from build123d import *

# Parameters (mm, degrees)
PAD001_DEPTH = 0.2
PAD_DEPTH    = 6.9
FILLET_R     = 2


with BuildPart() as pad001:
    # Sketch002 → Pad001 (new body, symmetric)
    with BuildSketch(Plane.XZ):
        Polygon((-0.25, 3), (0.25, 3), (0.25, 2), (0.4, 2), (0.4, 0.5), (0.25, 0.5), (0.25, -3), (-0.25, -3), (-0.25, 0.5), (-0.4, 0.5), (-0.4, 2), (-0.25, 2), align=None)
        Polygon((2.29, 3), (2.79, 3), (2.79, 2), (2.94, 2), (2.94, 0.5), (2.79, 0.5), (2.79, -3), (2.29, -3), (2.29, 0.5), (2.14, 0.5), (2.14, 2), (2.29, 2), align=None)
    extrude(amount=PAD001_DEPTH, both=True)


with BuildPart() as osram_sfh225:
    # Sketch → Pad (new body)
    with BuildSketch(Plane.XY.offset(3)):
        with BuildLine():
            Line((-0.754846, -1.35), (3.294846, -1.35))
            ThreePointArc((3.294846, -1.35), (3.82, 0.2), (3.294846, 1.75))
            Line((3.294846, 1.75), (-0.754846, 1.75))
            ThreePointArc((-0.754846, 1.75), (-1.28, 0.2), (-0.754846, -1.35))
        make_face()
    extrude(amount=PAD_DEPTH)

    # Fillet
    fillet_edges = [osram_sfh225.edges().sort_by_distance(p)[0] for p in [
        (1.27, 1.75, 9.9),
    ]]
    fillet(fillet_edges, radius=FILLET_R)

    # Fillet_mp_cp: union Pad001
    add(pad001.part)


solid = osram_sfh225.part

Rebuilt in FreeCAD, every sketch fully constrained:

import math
import FreeCAD as App
import Part
import Sketcher


def edges_at(feature, points):
    """Names of the edges that pass closest to the given points."""
    edges = feature.Shape.Edges
    near = lambda p: min(range(len(edges)), key=lambda i: edges[i].distToShape(Part.Vertex(*p))[0])
    return sorted({f"Edge{near(p) + 1}" for p in points})

doc = App.newDocument("Part")
body = doc.addObject("PartDesign::Body", "Body")
body.AllowCompound = True

sketch1 = doc.addObject("Sketcher::SketchObject", "Sketch")
body.addObject(sketch1)
sketch1.AttachmentSupport = (doc.XZ_Plane, [""])
sketch1.MapMode = "FlatFace"
sketch1.addGeometry(Part.LineSegment(App.Vector(0.25, 3, 0), App.Vector(-0.25, 3, 0)), False)
sketch1.addGeometry(Part.LineSegment(App.Vector(-0.25, 3, 0), App.Vector(-0.25, 2, 0)), False)
sketch1.addGeometry(Part.LineSegment(App.Vector(-0.25, 2, 0), App.Vector(-0.4, 2, 0)), False)
sketch1.addGeometry(Part.LineSegment(App.Vector(-0.4, 2, 0), App.Vector(-0.4, 0.5, 0)), False)
sketch1.addGeometry(Part.LineSegment(App.Vector(-0.4, 0.5, 0), App.Vector(-0.25, 0.5, 0)), False)
sketch1.addGeometry(Part.LineSegment(App.Vector(-0.25, 0.5, 0), App.Vector(-0.25, -3, 0)), False)
sketch1.addGeometry(Part.LineSegment(App.Vector(-0.25, -3, 0), App.Vector(0.25, -3, 0)), False)
sketch1.addGeometry(Part.LineSegment(App.Vector(0.25, -3, 0), App.Vector(0.25, 0.5, 0)), False)
sketch1.addGeometry(Part.LineSegment(App.Vector(0.25, 0.5, 0), App.Vector(0.4, 0.5, 0)), False)
sketch1.addGeometry(Part.LineSegment(App.Vector(0.4, 0.5, 0), App.Vector(0.4, 2, 0)), False)
sketch1.addGeometry(Part.LineSegment(App.Vector(0.4, 2, 0), App.Vector(0.25, 2, 0)), False)
sketch1.addGeometry(Part.LineSegment(App.Vector(0.25, 2, 0), App.Vector(0.25, 3, 0)), False)
sketch1.addGeometry(Part.LineSegment(App.Vector(2.79, 3, 0), App.Vector(2.29, 3, 0)), False)
sketch1.addGeometry(Part.LineSegment(App.Vector(2.29, 3, 0), App.Vector(2.29, 2, 0)), False)
sketch1.addGeometry(Part.LineSegment(App.Vector(2.29, 2, 0), App.Vector(2.14, 2, 0)), False)
sketch1.addGeometry(Part.LineSegment(App.Vector(2.14, 2, 0), App.Vector(2.14, 0.5, 0)), False)
sketch1.addGeometry(Part.LineSegment(App.Vector(2.14, 0.5, 0), App.Vector(2.29, 0.5, 0)), False)
sketch1.addGeometry(Part.LineSegment(App.Vector(2.29, 0.5, 0), App.Vector(2.29, -3, 0)), False)
sketch1.addGeometry(Part.LineSegment(App.Vector(2.29, -3, 0), App.Vector(2.79, -3, 0)), False)
sketch1.addGeometry(Part.LineSegment(App.Vector(2.79, -3, 0), App.Vector(2.79, 0.5, 0)), False)
sketch1.addGeometry(Part.LineSegment(App.Vector(2.79, 0.5, 0), App.Vector(2.94, 0.5, 0)), False)
sketch1.addGeometry(Part.LineSegment(App.Vector(2.94, 0.5, 0), App.Vector(2.94, 2, 0)), False)
sketch1.addGeometry(Part.LineSegment(App.Vector(2.94, 2, 0), App.Vector(2.79, 2, 0)), False)
sketch1.addGeometry(Part.LineSegment(App.Vector(2.79, 2, 0), App.Vector(2.79, 3, 0)), False)
sketch1.addConstraint(Sketcher.Constraint("Coincident", 0, 2, 1, 1))
sketch1.addConstraint(Sketcher.Constraint("Coincident", 1, 2, 2, 1))
sketch1.addConstraint(Sketcher.Constraint("Coincident", 2, 2, 3, 1))
sketch1.addConstraint(Sketcher.Constraint("Coincident", 3, 2, 4, 1))
sketch1.addConstraint(Sketcher.Constraint("Coincident", 4, 2, 5, 1))
sketch1.addConstraint(Sketcher.Constraint("Coincident", 5, 2, 6, 1))
sketch1.addConstraint(Sketcher.Constraint("Coincident", 6, 2, 7, 1))
sketch1.addConstraint(Sketcher.Constraint("Coincident", 7, 2, 8, 1))
sketch1.addConstraint(Sketcher.Constraint("Coincident", 8, 2, 9, 1))
sketch1.addConstraint(Sketcher.Constraint("Coincident", 9, 2, 10, 1))
sketch1.addConstraint(Sketcher.Constraint("Coincident", 10, 2, 11, 1))
sketch1.addConstraint(Sketcher.Constraint("Coincident", 11, 2, 0, 1))
sketch1.addConstraint(Sketcher.Constraint("Coincident", 12, 2, 13, 1))
sketch1.addConstraint(Sketcher.Constraint("Coincident", 13, 2, 14, 1))
sketch1.addConstraint(Sketcher.Constraint("Coincident", 14, 2, 15, 1))
sketch1.addConstraint(Sketcher.Constraint("Coincident", 15, 2, 16, 1))
sketch1.addConstraint(Sketcher.Constraint("Coincident", 16, 2, 17, 1))
sketch1.addConstraint(Sketcher.Constraint("Coincident", 17, 2, 18, 1))
sketch1.addConstraint(Sketcher.Constraint("Coincident", 18, 2, 19, 1))
sketch1.addConstraint(Sketcher.Constraint("Coincident", 19, 2, 20, 1))
sketch1.addConstraint(Sketcher.Constraint("Coincident", 20, 2, 21, 1))
sketch1.addConstraint(Sketcher.Constraint("Coincident", 21, 2, 22, 1))
sketch1.addConstraint(Sketcher.Constraint("Coincident", 22, 2, 23, 1))
sketch1.addConstraint(Sketcher.Constraint("Coincident", 23, 2, 12, 1))
sketch1.addConstraint(Sketcher.Constraint("Horizontal", 0))
sketch1.addConstraint(Sketcher.Constraint("Vertical", 1))
sketch1.addConstraint(Sketcher.Constraint("Horizontal", 2))
sketch1.addConstraint(Sketcher.Constraint("Vertical", 3))
sketch1.addConstraint(Sketcher.Constraint("Horizontal", 4))
sketch1.addConstraint(Sketcher.Constraint("Vertical", 5))
sketch1.addConstraint(Sketcher.Constraint("Horizontal", 6))
sketch1.addConstraint(Sketcher.Constraint("Vertical", 7))
sketch1.addConstraint(Sketcher.Constraint("Horizontal", 8))
sketch1.addConstraint(Sketcher.Constraint("Vertical", 9))
sketch1.addConstraint(Sketcher.Constraint("Horizontal", 10))
sketch1.addConstraint(Sketcher.Constraint("Vertical", 11))
sketch1.addConstraint(Sketcher.Constraint("Horizontal", 12))
sketch1.addConstraint(Sketcher.Constraint("Vertical", 13))
sketch1.addConstraint(Sketcher.Constraint("Horizontal", 14))
sketch1.addConstraint(Sketcher.Constraint("Vertical", 15))
sketch1.addConstraint(Sketcher.Constraint("Horizontal", 16))
sketch1.addConstraint(Sketcher.Constraint("Vertical", 17))
sketch1.addConstraint(Sketcher.Constraint("Horizontal", 18))
sketch1.addConstraint(Sketcher.Constraint("Vertical", 19))
sketch1.addConstraint(Sketcher.Constraint("Horizontal", 20))
sketch1.addConstraint(Sketcher.Constraint("Vertical", 21))
sketch1.addConstraint(Sketcher.Constraint("Horizontal", 22))
sketch1.addConstraint(Sketcher.Constraint("Vertical", 23))
sketch1.addConstraint(Sketcher.Constraint("Symmetric", 0, 2, 6, 2, -1, 1))
sketch1.addConstraint(Sketcher.Constraint("Symmetric", 4, 2, 7, 2, -2))
sketch1.addConstraint(Sketcher.Constraint("Symmetric", 2, 2, 9, 2, -2))
sketch1.addConstraint(Sketcher.Constraint("Symmetric", 12, 2, 17, 2, -1))
sketch1.addConstraint(Sketcher.Constraint("Horizontal", 11, 2, 12, 2))
sketch1.addConstraint(Sketcher.Constraint("Horizontal", 10, 2, 13, 2))
sketch1.addConstraint(Sketcher.Constraint("Horizontal", 8, 2, 15, 2))
sketch1.addConstraint(Sketcher.Constraint("Horizontal", 16, 2, 19, 2))
sketch1.addConstraint(Sketcher.Constraint("Horizontal", 14, 2, 21, 2))
sketch1.addConstraint(Sketcher.Constraint("Vertical", 7, 2, 10, 2))
sketch1.addConstraint(Sketcher.Constraint("Vertical", 19, 2, 22, 2))
sketch1.addConstraint(Sketcher.Constraint("Equal", 6, 12))
sketch1.addConstraint(Sketcher.Constraint("Equal", 10, 14))
sketch1.addConstraint(Sketcher.Constraint("Equal", 16, 20))
sketch1.addConstraint(Sketcher.Constraint("DistanceY", 1, 2, 1, 1, 1.0))
sketch1.addConstraint(Sketcher.Constraint("DistanceX", 0, 2, 0, 1, 0.5))
sketch1.addConstraint(Sketcher.Constraint("DistanceY", 3, 2, 3, 1, 1.5))
sketch1.addConstraint(Sketcher.Constraint("DistanceY", 5, 2, 5, 1, 3.5))
sketch1.addConstraint(Sketcher.Constraint("DistanceX", 2, 2, 2, 1, 0.15))
sketch1.addConstraint(Sketcher.Constraint("DistanceX", -1, 1, 12, 2, 2.29))
pad1 = doc.addObject("PartDesign::Pad", "Pad")
body.addObject(pad1)
pad1.Profile = sketch1
pad1.Length = 0.4
pad1.Midplane = True
body2 = doc.addObject("PartDesign::Body", "Body001")

sketch2 = doc.addObject("Sketcher::SketchObject", "Sketch001")
body2.addObject(sketch2)
sketch2.AttachmentSupport = (doc.getObject("XY_Plane001"), [""])
sketch2.MapMode = "FlatFace"
sketch2.AttachmentOffset = App.Placement(App.Vector(0, 0, 3), App.Rotation())
sketch2.addGeometry(Part.LineSegment(App.Vector(-0.8, -1.4, 0), App.Vector(3.3, -1.4, 0)), False)
sketch2.addGeometry(Part.ArcOfCircle(Part.Circle(App.Vector(1.3, 0.2, 0), App.Vector(0, 0, 1), 2.6), math.radians(-37), math.radians(37)), False)
sketch2.addGeometry(Part.LineSegment(App.Vector(3.3, 1.8, 0), App.Vector(-0.8, 1.8, 0)), False)
sketch2.addGeometry(Part.ArcOfCircle(Part.Circle(App.Vector(1.3, 0.2, 0), App.Vector(0, 0, 1), 2.6), math.radians(143), math.radians(217)), False)
sketch2.addConstraint(Sketcher.Constraint("Coincident", 0, 2, 1, 1))
sketch2.addConstraint(Sketcher.Constraint("Coincident", 1, 2, 2, 1))
sketch2.addConstraint(Sketcher.Constraint("Coincident", 2, 2, 3, 1))
sketch2.addConstraint(Sketcher.Constraint("Coincident", 3, 2, 0, 1))
sketch2.addConstraint(Sketcher.Constraint("Horizontal", 0))
sketch2.addConstraint(Sketcher.Constraint("Horizontal", 2))
sketch2.addConstraint(Sketcher.Constraint("Coincident", 3, 3, 1, 3))
sketch2.addConstraint(Sketcher.Constraint("Equal", 1, 3))
sketch2.addConstraint(Sketcher.Constraint("Vertical", 0, 2, 1, 2))
sketch2.addConstraint(Sketcher.Constraint("Radius", 1, 2.550001))
sketch2.addConstraint(Sketcher.Constraint("DistanceY", -1, 1, 1, 3, 0.2))
sketch2.addConstraint(Sketcher.Constraint("DistanceY", 0, 2, 1, 2, 3.1))
sketch2.addConstraint(Sketcher.Constraint("DistanceX", -1, 1, 1, 3, 1.269999))
pad2 = doc.addObject("PartDesign::Pad", "Pad001")
body2.addObject(pad2)
pad2.Profile = sketch2
pad2.Length = 6.9
doc.recompute()

fillet = doc.addObject("PartDesign::Fillet", "Fillet")
body2.addObject(fillet)
fillet.Base = (pad2, edges_at(pad2, [(1.27, 1.75, 9.9)]))
fillet.Radius = 2
doc.recompute()

boolean = doc.addObject("PartDesign::Boolean", "Boolean")
body2.addObject(boolean)
boolean.Type = "Fuse"
boolean.addObjects([body])

doc.recompute()
